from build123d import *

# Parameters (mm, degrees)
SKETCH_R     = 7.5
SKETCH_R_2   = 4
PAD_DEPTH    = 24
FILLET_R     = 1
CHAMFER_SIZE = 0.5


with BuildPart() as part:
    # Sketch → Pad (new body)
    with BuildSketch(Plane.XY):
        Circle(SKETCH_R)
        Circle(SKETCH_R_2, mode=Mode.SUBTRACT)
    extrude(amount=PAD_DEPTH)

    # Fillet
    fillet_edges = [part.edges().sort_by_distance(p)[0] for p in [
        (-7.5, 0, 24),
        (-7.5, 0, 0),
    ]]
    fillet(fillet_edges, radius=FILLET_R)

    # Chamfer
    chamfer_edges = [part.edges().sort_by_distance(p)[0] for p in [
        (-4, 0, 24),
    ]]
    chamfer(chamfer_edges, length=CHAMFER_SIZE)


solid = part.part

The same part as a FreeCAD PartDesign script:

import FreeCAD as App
import Part
import Sketcher
from FreeCAD import Vector


def edges_at(feature, points):
    """Names of the edges that pass closest to the given points."""
    edges = feature.Shape.Edges
    near = lambda p: min(range(len(edges)), key=lambda i: edges[i].distToShape(Part.Vertex(*p))[0])
    return sorted({f"Edge{near(p) + 1}" for p in points})

doc = App.newDocument("Part")
body = doc.addObject("PartDesign::Body", "Body")

sketch1 = body.newObject("Sketcher::SketchObject", "Sketch")
sketch1.AttachmentSupport = (doc.getObject("XY_Plane"), [""])
sketch1.MapMode = "FlatFace"
sketch1.addGeometry([
    Part.Circle(Vector(0, 0, 0), Vector(0, 0, 1), 7.5),
    Part.Circle(Vector(0, 0, 0), Vector(0, 0, 1), 4),
], False)
sketch1.addConstraint([
    Sketcher.Constraint("Coincident", 0, 3, -1, 1),
    Sketcher.Constraint("Coincident", 1, 3, -1, 1),
    Sketcher.Constraint("Diameter", 0, 15.0),
    Sketcher.Constraint("Diameter", 1, 8.0),
])
pad1 = body.newObject("PartDesign::Pad", "Pad")
pad1.Profile = sketch1
pad1.Length = 24
doc.recompute()

fillet = body.newObject("PartDesign::Fillet", "Fillet")
fillet.Base = (pad1, edges_at(pad1, [(-7.5, 0, 24), (-7.5, 0, 0)]))
fillet.Radius = 1
doc.recompute()

chamfer = body.newObject("PartDesign::Chamfer", "Chamfer")
chamfer.Base = (fillet, edges_at(fillet, [(-4, 0, 24)]))
chamfer.Size = 0.5

doc.recompute()
